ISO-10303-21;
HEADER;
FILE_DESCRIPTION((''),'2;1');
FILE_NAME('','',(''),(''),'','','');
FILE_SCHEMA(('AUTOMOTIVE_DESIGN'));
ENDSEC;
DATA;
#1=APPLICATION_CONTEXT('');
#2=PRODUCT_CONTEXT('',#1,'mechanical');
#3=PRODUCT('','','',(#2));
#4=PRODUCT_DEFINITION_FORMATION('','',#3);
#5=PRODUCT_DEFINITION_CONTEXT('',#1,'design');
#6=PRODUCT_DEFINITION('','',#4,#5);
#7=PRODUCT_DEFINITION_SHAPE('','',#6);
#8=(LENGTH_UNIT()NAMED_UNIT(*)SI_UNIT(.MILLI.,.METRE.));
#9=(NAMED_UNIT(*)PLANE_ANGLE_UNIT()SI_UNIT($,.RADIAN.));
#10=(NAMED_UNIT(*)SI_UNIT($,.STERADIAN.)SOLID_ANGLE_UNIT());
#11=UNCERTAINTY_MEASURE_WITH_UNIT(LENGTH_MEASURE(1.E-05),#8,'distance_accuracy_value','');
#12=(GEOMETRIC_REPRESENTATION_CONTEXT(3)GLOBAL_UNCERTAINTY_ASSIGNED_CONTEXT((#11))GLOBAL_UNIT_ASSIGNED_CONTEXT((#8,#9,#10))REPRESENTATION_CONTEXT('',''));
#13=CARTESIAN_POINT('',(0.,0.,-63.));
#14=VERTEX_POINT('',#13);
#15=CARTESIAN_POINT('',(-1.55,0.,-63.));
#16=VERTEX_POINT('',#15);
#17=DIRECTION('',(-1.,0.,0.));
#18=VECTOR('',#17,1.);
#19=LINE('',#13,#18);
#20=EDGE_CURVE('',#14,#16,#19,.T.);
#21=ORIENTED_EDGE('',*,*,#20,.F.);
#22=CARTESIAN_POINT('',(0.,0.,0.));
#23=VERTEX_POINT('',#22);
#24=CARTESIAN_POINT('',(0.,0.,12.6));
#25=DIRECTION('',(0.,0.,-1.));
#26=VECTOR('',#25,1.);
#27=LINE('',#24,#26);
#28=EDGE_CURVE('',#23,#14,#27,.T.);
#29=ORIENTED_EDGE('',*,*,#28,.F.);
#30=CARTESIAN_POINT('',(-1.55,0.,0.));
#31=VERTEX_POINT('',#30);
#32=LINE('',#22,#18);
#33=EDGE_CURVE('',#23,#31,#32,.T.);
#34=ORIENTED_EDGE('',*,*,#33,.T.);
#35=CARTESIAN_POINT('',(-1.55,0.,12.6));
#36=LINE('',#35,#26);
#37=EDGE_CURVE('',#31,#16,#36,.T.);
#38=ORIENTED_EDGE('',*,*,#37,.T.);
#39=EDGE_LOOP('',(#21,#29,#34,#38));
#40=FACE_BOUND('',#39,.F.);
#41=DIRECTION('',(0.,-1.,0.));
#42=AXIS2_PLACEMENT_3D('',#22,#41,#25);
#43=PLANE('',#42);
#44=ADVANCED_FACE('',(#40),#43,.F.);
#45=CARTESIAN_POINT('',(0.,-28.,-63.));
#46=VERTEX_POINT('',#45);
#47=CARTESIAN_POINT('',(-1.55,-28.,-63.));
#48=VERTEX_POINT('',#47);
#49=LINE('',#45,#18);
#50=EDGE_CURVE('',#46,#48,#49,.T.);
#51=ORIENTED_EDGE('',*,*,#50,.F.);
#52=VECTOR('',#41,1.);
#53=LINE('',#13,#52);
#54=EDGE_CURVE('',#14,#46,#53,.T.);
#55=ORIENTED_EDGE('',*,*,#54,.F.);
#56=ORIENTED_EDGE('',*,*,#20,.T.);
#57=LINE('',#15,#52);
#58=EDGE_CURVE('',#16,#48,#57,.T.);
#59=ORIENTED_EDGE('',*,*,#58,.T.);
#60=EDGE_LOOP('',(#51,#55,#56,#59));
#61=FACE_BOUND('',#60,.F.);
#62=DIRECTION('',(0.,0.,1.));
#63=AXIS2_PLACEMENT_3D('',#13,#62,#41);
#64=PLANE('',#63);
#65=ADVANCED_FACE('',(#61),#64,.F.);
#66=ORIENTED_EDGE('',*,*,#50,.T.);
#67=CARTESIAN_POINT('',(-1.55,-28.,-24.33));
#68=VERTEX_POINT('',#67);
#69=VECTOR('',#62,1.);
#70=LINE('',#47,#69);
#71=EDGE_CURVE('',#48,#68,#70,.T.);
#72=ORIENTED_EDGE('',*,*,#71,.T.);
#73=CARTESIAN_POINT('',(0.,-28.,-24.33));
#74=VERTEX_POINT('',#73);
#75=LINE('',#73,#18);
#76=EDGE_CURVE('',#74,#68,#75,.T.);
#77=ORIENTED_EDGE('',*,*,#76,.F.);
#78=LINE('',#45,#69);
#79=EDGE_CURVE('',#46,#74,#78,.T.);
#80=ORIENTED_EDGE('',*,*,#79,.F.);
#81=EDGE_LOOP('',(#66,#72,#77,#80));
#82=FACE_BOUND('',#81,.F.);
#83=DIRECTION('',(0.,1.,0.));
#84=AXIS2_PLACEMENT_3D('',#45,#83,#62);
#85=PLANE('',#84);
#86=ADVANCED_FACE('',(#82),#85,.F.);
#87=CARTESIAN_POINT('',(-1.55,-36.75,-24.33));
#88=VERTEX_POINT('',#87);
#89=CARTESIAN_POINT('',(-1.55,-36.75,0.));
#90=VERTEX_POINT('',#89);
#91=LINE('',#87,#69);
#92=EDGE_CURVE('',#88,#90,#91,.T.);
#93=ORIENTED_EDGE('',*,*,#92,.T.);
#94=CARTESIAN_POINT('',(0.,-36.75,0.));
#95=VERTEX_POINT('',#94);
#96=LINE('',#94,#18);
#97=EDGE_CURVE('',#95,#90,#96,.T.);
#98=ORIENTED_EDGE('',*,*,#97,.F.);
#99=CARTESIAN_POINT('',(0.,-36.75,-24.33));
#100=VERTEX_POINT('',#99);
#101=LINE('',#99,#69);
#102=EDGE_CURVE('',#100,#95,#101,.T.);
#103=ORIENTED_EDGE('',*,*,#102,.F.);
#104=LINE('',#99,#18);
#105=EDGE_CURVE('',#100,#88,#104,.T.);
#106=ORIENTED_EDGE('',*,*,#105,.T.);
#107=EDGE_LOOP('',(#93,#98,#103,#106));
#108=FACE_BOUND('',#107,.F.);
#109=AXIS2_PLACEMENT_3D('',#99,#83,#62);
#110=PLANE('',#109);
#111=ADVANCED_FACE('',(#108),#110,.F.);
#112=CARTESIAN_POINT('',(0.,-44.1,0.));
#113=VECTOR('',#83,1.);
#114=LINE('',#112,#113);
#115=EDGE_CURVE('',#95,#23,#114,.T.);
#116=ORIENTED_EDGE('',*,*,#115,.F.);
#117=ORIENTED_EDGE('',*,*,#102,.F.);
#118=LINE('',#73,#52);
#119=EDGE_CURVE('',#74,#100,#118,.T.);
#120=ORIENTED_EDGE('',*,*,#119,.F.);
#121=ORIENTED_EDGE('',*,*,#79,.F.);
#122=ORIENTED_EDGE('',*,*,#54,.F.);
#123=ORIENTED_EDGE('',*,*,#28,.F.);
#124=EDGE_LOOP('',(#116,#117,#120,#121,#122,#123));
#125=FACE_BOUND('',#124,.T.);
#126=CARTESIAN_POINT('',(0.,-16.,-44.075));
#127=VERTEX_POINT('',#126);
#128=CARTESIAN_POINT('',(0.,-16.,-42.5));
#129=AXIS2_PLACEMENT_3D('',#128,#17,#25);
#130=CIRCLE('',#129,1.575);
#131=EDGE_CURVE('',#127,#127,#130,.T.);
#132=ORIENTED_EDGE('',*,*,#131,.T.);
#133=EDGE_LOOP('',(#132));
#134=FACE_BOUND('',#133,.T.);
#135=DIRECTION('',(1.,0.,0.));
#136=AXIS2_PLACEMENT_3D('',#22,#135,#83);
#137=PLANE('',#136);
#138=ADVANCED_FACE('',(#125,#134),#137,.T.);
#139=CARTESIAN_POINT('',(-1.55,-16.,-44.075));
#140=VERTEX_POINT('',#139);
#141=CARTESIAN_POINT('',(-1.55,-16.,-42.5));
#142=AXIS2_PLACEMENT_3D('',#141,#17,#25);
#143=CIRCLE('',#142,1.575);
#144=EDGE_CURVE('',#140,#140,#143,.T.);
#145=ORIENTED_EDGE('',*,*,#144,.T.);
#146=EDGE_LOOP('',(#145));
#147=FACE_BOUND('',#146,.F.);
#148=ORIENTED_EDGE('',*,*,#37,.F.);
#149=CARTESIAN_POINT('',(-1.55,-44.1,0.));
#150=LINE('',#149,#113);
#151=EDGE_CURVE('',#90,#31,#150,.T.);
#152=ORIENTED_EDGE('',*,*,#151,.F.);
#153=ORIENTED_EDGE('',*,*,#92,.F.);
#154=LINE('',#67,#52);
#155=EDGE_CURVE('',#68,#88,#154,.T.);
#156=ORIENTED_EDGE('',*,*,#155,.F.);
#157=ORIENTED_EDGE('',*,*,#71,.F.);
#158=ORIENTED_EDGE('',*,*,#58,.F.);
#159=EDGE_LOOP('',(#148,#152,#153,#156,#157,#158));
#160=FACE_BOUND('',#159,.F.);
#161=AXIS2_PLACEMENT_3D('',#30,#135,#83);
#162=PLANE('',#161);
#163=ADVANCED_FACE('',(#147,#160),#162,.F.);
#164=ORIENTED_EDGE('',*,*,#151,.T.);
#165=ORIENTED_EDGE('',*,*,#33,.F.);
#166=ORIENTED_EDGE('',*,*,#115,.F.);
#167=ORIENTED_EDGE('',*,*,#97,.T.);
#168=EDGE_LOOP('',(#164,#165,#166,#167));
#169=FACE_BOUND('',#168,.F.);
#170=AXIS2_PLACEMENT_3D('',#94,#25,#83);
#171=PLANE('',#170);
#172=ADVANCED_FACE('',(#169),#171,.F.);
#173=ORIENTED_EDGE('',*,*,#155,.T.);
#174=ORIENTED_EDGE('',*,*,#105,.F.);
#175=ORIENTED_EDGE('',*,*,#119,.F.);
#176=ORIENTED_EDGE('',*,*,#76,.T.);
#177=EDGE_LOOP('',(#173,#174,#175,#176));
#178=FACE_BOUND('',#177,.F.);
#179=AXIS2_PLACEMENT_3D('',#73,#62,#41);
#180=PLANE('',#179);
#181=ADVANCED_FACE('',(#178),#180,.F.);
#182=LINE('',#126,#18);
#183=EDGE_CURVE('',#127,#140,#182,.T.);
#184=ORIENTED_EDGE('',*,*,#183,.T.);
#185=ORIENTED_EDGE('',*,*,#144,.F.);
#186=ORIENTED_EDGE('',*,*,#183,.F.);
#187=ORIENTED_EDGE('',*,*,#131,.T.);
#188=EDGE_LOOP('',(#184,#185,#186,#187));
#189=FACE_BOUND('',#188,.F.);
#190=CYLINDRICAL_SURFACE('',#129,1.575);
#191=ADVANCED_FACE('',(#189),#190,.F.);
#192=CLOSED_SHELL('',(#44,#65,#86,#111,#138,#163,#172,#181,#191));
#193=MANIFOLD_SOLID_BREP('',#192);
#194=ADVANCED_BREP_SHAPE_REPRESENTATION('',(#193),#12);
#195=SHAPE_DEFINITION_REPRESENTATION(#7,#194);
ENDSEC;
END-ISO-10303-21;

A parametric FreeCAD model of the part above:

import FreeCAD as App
import Part
import Sketcher
from FreeCAD import Vector

doc = App.newDocument("Part")
body = doc.addObject("PartDesign::Body", "Body")

sketch1 = body.newObject("Sketcher::SketchObject", "Sketch")
sketch1.AttachmentSupport = (doc.getObject("YZ_Plane"), [""])
sketch1.MapMode = "FlatFace"
sketch1.addGeometry(Part.LineSegment(Vector(0, -63, 0), Vector(0, 0, 0)), False)
sketch1.addGeometry(Part.LineSegment(Vector(0, 0, 0), Vector(-36.75, 0, 0)), False)
sketch1.addGeometry(Part.LineSegment(Vector(-36.75, 0, 0), Vector(-36.75, -24.33, 0)), False)
sketch1.addGeometry(Part.LineSegment(Vector(-36.75, -24.33, 0), Vector(-28, -24.33, 0)), False)
sketch1.addGeometry(Part.LineSegment(Vector(-28, -24.33, 0), Vector(-28, -63, 0)), False)
sketch1.addGeometry(Part.LineSegment(Vector(-28, -63, 0), Vector(0, -63, 0)), False)
sketch1.addConstraint(Sketcher.Constraint("Coincident", 0, 2, 1, 1))
sketch1.addConstraint(Sketcher.Constraint("Coincident", 1, 2, 2, 1))
sketch1.addConstraint(Sketcher.Constraint("Coincident", 2, 2, 3, 1))
sketch1.addConstraint(Sketcher.Constraint("Coincident", 3, 2, 4, 1))
sketch1.addConstraint(Sketcher.Constraint("Coincident", 4, 2, 5, 1))
sketch1.addConstraint(Sketcher.Constraint("Coincident", 5, 2, 0, 1))
sketch1.addConstraint(Sketcher.Constraint("Vertical", 0))
sketch1.addConstraint(Sketcher.Constraint("Horizontal", 1))
sketch1.addConstraint(Sketcher.Constraint("Vertical", 2))
sketch1.addConstraint(Sketcher.Constraint("Horizontal", 3))
sketch1.addConstraint(Sketcher.Constraint("Vertical", 4))
sketch1.addConstraint(Sketcher.Constraint("Horizontal", 5))
sketch1.addConstraint(Sketcher.Constraint("Coincident", 0, 2, -1, 1))
sketch1.addConstraint(Sketcher.Constraint("DistanceX", 5, 1, 5, 2, 28.0))
sketch1.addConstraint(Sketcher.Constraint("DistanceY", 0, 1, 0, 2, 63.0))
sketch1.addConstraint(Sketcher.Constraint("DistanceX", 1, 2, 1, 1, 36.75))
sketch1.addConstraint(Sketcher.Constraint("DistanceY", 2, 2, 2, 1, 24.33))
pad1 = body.newObject("PartDesign::Pad", "Pad")
pad1.Profile = sketch1
pad1.Length = 1.55
pad1.Reversed = True

sketch2 = body.newObject("Sketcher::SketchObject", "Sketch001")
sketch2.AttachmentSupport = (doc.getObject("YZ_Plane"), [""])
sketch2.MapMode = "FlatFace"
sketch2.addGeometry(Part.Circle(Vector(-16, -42.5, 0), Vector(0, 0, 1), 1.575), False)
sketch2.addConstraint(Sketcher.Constraint("Diameter", 0, 3.15))
sketch2.addConstraint(Sketcher.Constraint("DistanceX", 0, 3, -1, 1, 16.0))
sketch2.addConstraint(Sketcher.Constraint("DistanceY", 0, 3, -1, 1, 42.5))
doc.recompute()
hole = body.newObject("PartDesign::Hole", "Hole")
hole.Profile = sketch2
hole.ThreadType = "None"
hole.Diameter = 3.15
hole.DepthType = "ThroughAll"

doc.recompute()
